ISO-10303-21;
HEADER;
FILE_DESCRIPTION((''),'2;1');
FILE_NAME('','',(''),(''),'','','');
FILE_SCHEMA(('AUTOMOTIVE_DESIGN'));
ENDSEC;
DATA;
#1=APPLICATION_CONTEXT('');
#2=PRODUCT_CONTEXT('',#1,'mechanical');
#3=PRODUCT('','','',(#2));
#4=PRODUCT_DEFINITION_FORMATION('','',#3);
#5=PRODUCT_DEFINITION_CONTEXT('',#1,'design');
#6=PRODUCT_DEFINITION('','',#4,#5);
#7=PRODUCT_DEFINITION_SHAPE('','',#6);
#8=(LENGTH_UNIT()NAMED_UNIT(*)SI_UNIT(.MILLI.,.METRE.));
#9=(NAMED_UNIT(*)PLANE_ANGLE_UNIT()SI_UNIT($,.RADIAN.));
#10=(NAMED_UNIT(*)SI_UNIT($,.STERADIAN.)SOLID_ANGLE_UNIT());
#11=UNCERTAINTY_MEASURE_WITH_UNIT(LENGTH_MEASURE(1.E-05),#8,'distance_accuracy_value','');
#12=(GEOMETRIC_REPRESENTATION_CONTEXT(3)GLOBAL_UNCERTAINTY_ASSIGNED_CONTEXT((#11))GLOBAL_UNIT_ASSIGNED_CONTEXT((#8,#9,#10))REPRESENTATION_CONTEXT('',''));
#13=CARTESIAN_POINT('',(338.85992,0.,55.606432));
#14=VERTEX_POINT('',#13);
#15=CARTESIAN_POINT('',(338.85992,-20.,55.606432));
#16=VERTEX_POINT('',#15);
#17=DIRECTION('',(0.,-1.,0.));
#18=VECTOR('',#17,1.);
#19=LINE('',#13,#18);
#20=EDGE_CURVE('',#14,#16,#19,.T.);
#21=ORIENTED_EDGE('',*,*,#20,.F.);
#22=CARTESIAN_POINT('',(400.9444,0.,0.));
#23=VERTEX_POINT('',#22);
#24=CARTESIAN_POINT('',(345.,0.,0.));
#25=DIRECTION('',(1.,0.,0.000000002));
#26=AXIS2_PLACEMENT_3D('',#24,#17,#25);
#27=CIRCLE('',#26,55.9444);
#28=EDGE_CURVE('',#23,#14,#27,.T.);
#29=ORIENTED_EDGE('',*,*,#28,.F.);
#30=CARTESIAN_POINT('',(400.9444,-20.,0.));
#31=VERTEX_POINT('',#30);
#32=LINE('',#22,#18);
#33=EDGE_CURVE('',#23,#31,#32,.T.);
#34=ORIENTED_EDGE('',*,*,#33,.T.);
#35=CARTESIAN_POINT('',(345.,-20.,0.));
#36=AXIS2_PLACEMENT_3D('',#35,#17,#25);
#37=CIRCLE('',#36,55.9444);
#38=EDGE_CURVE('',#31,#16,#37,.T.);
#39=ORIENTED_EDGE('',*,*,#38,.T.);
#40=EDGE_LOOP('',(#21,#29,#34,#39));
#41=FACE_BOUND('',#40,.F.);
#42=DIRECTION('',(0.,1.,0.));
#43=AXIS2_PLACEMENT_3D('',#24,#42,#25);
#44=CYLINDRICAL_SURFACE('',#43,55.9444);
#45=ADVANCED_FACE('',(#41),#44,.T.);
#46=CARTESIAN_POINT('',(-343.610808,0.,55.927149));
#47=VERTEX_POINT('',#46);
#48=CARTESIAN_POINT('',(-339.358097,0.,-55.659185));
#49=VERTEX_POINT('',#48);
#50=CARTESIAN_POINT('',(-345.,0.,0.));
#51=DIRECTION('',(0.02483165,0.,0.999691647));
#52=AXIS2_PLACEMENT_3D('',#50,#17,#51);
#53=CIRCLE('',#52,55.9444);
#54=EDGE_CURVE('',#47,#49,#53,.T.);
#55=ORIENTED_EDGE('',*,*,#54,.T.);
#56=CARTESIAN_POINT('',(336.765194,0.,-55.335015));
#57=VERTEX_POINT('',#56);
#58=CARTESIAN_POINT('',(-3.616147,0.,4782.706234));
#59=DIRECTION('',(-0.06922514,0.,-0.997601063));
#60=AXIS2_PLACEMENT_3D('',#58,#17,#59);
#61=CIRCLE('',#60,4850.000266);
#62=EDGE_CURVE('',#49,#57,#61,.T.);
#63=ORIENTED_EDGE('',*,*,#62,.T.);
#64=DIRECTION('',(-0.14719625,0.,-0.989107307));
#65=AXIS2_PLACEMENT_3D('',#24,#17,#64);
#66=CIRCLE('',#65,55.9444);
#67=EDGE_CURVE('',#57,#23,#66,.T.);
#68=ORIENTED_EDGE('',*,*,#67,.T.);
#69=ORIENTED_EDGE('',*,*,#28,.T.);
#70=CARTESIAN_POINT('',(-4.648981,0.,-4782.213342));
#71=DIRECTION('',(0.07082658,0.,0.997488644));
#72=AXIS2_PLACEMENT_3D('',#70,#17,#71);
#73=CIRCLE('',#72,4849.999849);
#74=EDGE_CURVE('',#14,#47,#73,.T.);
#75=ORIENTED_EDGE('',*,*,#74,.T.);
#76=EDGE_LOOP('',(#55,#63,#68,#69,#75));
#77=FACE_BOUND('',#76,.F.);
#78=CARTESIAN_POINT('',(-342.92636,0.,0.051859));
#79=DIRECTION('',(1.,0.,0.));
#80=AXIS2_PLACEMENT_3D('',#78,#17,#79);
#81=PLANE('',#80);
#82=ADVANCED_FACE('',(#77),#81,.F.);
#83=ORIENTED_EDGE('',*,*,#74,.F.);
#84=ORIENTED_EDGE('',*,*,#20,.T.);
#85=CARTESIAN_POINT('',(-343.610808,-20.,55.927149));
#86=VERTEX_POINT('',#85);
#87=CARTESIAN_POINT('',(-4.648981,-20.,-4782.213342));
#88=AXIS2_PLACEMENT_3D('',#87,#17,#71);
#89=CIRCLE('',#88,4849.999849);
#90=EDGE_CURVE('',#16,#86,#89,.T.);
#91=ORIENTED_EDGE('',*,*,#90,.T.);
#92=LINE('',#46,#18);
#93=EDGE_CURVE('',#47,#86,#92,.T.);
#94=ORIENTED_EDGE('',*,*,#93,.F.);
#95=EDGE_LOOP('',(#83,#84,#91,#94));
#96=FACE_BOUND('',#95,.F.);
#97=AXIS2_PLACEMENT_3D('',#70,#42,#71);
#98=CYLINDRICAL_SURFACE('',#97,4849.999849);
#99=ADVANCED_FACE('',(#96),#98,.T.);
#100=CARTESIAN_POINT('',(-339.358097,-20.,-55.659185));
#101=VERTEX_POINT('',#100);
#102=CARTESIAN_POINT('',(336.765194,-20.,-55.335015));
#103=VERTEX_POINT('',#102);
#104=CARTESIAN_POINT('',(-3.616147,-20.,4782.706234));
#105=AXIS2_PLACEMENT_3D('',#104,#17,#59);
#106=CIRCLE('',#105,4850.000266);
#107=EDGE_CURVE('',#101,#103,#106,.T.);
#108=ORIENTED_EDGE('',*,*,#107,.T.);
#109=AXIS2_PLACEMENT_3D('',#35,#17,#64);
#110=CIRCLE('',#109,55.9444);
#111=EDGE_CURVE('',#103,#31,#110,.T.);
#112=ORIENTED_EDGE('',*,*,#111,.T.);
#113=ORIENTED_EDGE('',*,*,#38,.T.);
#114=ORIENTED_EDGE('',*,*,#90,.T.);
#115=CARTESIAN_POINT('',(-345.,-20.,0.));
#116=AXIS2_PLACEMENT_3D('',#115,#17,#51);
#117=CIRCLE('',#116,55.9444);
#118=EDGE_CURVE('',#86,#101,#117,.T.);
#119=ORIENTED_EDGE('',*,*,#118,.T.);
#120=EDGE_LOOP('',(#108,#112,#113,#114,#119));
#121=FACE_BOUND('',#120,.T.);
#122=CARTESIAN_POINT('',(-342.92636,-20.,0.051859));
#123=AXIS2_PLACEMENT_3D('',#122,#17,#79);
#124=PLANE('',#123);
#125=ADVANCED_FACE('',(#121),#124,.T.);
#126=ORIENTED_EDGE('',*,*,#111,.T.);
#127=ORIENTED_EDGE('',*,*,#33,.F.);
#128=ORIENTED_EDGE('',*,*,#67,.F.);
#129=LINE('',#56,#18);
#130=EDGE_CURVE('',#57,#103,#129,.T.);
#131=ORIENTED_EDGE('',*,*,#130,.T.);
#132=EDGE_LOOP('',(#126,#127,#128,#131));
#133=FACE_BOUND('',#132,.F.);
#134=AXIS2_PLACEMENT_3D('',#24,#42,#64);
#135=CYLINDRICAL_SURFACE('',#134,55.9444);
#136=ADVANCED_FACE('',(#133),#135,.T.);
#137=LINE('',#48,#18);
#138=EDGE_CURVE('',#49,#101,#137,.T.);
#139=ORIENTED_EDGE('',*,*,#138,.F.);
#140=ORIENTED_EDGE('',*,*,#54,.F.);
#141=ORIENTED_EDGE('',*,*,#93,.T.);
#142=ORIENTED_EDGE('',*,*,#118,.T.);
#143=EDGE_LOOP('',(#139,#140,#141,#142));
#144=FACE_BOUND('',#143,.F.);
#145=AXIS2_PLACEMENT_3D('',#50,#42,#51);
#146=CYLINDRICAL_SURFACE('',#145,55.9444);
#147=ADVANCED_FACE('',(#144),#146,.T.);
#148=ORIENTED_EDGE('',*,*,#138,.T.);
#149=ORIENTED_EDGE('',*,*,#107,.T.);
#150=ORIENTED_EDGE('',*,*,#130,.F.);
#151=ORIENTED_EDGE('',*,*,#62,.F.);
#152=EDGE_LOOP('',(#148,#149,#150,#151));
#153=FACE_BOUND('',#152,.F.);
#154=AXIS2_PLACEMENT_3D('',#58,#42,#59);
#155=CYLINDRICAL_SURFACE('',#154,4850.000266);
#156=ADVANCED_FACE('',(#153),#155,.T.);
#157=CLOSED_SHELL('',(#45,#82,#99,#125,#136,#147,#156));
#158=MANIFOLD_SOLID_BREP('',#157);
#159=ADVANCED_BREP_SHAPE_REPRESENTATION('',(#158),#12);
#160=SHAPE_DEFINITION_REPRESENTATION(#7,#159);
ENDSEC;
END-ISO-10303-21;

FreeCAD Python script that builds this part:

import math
import FreeCAD as App
import Part
import Sketcher

doc = App.newDocument("Part")
body = doc.addObject("PartDesign::Body", "Body")

# Sketch on XZ plane
sketch1 = body.newObject("Sketcher::SketchObject", "Sketch")
sketch1.AttachmentSupport = (doc.getObject("XZ_Plane"), [""])
sketch1.MapMode = "FlatFace"
sketch1.addGeometry([
    Part.ArcOfCircle(Part.Circle(App.Vector(-5, -4782, 0), App.Vector(0, 0, 1), 4850), math.radians(85.94), math.radians(94.01)),  # 0
    Part.ArcOfCircle(Part.Circle(App.Vector(-345, 0, 0), App.Vector(0, 0, 1), 56), math.radians(89), math.radians(276)),  # 1
    Part.ArcOfCircle(Part.Circle(App.Vector(-4, 4783, 0), App.Vector(0, 0, 1), 4850), math.radians(-93.97), math.radians(-85.98)),  # 2
    Part.ArcOfCircle(Part.Circle(App.Vector(345, 0, 0), App.Vector(0, 0, 1), 56), math.radians(-98), math.radians(0)),  # 3
    Part.ArcOfCircle(Part.Circle(App.Vector(345, 0, 0), App.Vector(0, 0, 1), 56), math.radians(0), math.radians(96)),  # 4
], False)
sketch1.addConstraint([
    Sketcher.Constraint("Coincident", 0, 2, 1, 1),
    Sketcher.Constraint("Coincident", 1, 2, 2, 1),
    Sketcher.Constraint("Coincident", 2, 2, 3, 1),
    Sketcher.Constraint("Tangent", 3, 2, 4, 1),
    Sketcher.Constraint("Coincident", 4, 2, 0, 1),
    Sketcher.Constraint("Equal", 1, 3),
    Sketcher.Constraint("Equal", 3, 4),
    Sketcher.Constraint("Symmetric", 1, 3, 3, 3, -1, 1),
    Sketcher.Constraint("PointOnObject", 1, 3, -1),
    Sketcher.Constraint("PointOnObject", 3, 2, -1),
    Sketcher.Constraint("DistanceX", 1, 3, -1, 1, 345.0),
    Sketcher.Constraint("Radius", 1, 55.9444),
    Sketcher.Constraint("Radius", 0, 4849.999849),
    Sketcher.Constraint("Radius", 2, 4850.000266),
    Sketcher.Constraint("DistanceX", 0, 3, -1, 1, 4.648981),
    Sketcher.Constraint("DistanceX", -1, 1, 4, 2, 338.85992),
    Sketcher.Constraint("DistanceX", 1, 2, 2, 2, 676.123291),
    Sketcher.Constraint("DistanceX", 2, 3, -1, 1, 3.616147),
])
pad1 = body.newObject("PartDesign::Pad", "Pad")
pad1.Profile = sketch1
pad1.Length = 20

doc.recompute()
